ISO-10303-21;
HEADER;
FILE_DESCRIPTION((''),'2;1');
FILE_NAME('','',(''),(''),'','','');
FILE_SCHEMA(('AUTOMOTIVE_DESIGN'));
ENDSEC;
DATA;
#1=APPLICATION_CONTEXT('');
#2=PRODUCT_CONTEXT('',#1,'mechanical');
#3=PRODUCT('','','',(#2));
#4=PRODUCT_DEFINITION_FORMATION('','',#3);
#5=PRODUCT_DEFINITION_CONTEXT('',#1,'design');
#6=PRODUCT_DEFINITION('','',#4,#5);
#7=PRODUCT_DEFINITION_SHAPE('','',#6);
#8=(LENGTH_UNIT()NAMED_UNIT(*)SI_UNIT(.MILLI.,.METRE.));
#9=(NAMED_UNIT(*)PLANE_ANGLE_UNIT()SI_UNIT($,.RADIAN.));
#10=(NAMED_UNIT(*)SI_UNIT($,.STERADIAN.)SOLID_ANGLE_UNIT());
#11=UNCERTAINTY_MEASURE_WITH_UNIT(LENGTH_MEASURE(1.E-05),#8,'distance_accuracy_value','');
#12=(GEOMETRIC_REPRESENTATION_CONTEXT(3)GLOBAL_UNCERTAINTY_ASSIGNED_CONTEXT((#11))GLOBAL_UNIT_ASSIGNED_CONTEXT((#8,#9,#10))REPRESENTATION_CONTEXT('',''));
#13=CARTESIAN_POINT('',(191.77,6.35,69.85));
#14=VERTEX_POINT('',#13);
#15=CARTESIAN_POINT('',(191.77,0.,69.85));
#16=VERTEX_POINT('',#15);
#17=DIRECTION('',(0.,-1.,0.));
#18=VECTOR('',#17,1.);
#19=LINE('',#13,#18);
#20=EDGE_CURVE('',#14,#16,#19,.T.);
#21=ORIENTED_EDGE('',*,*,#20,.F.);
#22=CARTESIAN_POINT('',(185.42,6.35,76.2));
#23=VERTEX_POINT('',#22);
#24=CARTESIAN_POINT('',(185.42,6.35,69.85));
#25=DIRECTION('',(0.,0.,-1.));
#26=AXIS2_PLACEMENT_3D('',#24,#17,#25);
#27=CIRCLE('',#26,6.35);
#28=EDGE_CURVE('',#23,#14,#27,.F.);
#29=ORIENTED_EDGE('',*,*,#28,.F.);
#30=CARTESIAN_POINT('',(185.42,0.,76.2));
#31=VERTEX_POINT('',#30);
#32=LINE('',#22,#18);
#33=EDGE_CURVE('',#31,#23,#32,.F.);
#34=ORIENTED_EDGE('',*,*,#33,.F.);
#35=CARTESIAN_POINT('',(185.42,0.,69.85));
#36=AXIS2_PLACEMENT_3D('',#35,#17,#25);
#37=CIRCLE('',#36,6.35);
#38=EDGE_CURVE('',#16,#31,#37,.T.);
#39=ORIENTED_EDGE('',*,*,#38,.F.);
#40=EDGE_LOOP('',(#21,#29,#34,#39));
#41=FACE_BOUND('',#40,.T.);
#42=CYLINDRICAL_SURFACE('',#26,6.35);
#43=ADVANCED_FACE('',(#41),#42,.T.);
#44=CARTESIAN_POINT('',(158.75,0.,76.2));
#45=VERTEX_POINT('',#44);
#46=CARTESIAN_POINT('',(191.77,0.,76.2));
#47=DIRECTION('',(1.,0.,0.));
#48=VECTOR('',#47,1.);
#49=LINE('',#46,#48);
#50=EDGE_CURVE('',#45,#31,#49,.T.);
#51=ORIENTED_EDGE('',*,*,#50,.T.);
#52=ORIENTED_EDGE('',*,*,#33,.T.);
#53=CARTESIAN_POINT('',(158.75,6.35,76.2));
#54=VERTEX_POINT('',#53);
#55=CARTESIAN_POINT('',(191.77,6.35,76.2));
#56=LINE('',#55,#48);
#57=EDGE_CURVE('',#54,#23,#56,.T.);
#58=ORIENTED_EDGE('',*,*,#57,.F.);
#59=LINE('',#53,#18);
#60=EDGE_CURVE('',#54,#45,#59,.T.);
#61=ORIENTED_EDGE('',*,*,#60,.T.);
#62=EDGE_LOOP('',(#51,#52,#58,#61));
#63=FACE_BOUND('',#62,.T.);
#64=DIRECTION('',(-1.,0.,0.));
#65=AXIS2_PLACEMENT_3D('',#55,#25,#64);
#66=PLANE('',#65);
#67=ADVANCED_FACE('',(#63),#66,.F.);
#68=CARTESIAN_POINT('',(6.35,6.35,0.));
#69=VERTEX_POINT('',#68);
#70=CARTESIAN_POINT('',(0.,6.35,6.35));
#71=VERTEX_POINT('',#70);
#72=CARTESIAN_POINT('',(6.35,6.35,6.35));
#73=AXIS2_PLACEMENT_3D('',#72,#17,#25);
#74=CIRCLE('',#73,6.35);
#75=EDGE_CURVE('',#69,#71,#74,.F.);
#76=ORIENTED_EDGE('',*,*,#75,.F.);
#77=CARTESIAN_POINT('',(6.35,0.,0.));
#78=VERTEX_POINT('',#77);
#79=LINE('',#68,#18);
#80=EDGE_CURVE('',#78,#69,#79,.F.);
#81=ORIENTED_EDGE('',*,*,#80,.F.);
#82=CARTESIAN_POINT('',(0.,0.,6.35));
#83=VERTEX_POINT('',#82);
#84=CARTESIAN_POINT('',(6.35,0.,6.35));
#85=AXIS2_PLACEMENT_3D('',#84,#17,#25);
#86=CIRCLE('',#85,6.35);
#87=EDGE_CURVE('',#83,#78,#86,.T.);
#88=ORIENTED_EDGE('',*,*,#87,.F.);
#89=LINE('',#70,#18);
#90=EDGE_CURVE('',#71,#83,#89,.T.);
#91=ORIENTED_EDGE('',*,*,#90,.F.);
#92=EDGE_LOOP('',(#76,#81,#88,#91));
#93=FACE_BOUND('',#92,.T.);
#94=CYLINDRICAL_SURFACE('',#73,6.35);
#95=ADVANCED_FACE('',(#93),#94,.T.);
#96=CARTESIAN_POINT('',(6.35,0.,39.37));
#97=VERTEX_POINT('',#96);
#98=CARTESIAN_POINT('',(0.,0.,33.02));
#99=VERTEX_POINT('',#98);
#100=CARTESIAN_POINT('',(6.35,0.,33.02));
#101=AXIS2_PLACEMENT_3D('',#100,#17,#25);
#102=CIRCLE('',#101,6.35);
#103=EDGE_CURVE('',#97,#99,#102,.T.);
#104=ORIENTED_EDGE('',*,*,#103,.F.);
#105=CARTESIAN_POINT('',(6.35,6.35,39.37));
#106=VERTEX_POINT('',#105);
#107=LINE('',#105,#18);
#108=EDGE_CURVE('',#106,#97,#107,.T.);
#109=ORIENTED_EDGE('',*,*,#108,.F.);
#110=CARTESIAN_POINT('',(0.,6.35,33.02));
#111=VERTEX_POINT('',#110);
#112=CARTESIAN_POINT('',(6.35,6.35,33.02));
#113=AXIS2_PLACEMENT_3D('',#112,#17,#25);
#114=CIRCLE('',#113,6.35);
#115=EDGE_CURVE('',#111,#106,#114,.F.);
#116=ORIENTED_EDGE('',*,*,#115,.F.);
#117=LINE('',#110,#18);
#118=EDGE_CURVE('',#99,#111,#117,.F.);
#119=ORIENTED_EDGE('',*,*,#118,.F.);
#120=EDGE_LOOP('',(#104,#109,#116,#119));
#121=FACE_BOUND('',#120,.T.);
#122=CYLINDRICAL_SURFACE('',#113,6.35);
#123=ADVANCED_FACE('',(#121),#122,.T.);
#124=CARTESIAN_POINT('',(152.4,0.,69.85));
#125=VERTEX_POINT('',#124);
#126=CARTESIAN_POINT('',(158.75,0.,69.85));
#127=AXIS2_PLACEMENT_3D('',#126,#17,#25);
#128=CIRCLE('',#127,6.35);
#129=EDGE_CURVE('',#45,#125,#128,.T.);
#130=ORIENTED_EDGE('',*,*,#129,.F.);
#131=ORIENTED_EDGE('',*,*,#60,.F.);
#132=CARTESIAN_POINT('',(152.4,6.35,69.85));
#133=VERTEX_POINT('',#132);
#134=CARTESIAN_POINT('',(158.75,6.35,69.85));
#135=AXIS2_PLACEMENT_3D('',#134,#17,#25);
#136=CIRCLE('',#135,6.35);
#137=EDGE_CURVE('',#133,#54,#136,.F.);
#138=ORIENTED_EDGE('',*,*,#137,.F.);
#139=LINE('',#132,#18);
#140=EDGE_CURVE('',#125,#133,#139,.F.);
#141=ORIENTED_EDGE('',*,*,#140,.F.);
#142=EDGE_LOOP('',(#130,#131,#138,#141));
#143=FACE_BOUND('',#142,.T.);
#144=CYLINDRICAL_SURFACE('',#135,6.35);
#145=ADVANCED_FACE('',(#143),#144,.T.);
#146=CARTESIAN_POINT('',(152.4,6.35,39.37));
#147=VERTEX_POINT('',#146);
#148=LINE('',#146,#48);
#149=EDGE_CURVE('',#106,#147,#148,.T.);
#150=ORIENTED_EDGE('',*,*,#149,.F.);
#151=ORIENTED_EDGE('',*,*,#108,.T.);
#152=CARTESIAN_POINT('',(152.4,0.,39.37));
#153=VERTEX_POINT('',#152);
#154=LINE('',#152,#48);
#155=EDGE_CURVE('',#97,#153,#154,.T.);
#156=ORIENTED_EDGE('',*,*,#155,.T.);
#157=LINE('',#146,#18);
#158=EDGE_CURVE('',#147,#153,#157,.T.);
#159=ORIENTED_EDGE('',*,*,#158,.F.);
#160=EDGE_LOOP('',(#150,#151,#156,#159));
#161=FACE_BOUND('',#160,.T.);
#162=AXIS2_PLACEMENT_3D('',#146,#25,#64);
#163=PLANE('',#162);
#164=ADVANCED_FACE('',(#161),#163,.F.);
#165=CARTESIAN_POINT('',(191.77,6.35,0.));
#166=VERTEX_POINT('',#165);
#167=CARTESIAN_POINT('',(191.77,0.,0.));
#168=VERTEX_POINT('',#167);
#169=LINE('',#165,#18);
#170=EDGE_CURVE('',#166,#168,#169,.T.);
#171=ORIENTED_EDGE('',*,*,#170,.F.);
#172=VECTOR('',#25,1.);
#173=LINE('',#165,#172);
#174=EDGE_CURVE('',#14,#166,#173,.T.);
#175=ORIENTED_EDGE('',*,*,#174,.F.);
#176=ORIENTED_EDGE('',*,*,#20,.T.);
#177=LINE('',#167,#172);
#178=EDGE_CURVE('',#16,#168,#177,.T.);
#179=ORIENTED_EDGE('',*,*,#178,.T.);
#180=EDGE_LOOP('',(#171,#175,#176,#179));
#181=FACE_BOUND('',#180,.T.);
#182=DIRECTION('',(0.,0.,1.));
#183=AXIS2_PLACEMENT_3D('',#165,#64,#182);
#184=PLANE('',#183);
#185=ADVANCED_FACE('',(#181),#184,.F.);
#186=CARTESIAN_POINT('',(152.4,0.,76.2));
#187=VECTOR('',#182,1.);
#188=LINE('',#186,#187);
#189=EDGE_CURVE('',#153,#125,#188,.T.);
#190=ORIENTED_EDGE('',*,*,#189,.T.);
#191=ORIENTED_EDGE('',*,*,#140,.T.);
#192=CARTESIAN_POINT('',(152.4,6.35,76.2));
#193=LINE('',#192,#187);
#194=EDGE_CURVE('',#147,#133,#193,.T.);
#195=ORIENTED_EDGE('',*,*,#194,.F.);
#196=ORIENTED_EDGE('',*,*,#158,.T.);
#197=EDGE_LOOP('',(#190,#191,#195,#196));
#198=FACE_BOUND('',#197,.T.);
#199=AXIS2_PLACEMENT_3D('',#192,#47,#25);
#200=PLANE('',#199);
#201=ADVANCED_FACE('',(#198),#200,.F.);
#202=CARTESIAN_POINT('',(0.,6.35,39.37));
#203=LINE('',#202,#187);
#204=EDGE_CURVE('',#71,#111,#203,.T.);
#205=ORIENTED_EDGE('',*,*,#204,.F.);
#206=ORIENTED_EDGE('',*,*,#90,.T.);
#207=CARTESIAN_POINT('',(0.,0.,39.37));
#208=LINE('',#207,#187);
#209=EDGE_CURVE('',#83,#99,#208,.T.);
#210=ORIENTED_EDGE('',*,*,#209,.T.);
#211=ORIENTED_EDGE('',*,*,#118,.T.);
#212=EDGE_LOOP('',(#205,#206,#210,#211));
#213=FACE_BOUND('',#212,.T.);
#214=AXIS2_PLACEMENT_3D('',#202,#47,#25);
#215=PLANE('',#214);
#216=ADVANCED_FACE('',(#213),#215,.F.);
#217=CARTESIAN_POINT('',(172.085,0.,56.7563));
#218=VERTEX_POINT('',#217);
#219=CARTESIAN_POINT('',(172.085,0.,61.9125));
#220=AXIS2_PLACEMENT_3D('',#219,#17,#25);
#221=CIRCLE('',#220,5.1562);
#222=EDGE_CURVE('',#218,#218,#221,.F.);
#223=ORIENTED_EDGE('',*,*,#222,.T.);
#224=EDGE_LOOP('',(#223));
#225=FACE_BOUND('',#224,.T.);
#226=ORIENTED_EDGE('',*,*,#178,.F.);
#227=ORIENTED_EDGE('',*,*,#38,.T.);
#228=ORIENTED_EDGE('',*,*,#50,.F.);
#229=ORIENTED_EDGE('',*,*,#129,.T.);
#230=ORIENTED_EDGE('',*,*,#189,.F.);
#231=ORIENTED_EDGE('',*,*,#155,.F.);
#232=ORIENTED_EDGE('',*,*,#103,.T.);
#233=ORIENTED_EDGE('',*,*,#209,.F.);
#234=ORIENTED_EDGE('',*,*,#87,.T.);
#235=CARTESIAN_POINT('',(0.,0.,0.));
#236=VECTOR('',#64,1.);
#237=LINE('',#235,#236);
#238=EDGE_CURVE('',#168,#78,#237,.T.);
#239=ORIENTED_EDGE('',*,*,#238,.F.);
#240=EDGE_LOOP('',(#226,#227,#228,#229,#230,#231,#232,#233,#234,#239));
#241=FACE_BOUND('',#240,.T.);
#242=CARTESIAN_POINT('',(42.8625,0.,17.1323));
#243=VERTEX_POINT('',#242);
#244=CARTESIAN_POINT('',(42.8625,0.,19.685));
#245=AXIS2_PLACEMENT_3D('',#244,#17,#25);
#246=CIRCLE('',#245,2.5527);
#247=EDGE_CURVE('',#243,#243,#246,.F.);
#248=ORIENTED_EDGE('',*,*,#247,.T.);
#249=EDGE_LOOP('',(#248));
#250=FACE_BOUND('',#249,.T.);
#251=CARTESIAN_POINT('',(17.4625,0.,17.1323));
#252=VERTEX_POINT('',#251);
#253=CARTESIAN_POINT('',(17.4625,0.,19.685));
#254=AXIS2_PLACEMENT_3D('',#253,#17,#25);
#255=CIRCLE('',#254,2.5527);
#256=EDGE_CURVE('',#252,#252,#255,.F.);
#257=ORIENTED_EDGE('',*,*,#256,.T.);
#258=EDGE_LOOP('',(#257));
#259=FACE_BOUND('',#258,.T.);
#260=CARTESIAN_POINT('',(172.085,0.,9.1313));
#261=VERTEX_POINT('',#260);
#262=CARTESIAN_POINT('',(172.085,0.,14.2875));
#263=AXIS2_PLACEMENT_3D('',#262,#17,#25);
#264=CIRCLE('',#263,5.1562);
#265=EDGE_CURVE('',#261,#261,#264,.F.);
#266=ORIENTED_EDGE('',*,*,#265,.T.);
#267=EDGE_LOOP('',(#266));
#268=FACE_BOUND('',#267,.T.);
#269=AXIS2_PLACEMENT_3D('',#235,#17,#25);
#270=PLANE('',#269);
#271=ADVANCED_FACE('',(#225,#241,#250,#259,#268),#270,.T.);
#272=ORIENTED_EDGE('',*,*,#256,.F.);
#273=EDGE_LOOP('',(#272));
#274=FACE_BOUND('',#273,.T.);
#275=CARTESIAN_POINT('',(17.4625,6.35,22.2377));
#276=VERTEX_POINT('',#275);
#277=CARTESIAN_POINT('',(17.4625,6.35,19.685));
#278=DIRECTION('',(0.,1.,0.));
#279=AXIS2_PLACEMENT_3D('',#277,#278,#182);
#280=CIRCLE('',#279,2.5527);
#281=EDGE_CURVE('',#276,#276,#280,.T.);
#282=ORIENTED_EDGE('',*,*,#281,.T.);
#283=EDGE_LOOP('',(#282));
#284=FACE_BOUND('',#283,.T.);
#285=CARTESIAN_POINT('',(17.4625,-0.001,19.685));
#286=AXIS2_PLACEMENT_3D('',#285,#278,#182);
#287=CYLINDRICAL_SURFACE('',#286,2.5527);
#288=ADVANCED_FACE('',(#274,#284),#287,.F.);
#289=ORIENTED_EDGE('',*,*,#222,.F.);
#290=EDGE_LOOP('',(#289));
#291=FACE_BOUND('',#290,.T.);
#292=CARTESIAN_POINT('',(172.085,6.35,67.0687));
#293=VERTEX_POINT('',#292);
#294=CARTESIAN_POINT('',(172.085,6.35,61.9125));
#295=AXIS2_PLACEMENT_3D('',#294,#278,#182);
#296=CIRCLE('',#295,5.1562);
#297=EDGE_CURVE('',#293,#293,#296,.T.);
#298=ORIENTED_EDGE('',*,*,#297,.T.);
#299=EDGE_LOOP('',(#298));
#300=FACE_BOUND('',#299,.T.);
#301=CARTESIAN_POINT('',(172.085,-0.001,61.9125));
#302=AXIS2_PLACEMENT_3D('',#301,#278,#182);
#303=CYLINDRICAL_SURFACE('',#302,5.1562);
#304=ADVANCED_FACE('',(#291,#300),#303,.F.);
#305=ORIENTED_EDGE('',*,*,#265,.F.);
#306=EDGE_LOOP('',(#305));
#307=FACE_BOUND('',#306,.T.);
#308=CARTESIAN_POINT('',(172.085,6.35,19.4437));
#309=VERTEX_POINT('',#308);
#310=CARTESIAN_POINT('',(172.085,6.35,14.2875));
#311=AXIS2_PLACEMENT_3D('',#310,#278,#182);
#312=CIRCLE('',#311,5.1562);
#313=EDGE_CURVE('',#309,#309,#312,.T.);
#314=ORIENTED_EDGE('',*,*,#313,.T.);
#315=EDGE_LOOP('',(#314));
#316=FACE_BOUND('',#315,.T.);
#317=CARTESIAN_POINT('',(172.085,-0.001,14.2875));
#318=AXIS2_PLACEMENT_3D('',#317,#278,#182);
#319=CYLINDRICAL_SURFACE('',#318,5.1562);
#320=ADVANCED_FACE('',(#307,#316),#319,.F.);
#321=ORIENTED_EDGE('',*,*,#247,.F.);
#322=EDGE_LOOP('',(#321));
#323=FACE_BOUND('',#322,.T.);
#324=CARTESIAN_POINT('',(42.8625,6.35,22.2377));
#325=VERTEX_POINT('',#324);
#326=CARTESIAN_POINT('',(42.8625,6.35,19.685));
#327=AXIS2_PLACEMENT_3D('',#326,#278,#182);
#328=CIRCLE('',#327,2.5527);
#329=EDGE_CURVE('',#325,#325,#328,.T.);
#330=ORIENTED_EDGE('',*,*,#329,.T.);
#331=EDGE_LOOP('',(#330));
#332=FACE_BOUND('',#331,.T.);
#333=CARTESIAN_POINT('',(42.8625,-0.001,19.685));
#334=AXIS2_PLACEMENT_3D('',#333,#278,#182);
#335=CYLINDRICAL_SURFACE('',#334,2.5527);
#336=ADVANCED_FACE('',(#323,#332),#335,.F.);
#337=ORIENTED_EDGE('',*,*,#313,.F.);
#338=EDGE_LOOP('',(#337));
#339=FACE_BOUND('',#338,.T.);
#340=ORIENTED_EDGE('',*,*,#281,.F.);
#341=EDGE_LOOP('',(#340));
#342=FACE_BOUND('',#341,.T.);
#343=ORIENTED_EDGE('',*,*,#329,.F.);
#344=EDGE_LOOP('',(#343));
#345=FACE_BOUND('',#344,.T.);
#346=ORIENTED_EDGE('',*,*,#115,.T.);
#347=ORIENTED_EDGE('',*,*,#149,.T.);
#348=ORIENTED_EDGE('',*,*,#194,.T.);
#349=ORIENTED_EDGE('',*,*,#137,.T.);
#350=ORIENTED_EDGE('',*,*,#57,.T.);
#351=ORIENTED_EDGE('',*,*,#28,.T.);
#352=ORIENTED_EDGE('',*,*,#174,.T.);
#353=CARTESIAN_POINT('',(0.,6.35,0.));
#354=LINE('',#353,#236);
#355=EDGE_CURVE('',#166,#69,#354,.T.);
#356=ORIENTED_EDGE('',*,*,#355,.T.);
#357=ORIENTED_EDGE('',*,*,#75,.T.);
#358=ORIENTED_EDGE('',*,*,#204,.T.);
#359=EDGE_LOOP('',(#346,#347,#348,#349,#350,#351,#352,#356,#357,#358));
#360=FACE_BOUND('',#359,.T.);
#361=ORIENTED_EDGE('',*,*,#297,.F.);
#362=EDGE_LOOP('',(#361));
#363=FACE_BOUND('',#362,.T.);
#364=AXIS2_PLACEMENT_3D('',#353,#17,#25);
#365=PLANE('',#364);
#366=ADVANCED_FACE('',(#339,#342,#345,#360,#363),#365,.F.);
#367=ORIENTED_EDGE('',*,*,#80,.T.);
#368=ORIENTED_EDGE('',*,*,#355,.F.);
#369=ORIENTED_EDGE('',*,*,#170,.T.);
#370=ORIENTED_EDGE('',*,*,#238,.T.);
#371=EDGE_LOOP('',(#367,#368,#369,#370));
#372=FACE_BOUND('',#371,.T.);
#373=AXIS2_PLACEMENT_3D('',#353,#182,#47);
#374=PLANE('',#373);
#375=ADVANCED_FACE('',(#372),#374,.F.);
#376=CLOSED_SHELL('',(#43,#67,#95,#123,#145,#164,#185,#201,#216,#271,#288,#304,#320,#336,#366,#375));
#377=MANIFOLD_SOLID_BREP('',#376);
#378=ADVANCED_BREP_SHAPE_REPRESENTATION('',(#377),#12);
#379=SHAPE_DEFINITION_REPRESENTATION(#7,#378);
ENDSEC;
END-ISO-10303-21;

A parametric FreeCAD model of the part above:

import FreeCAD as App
import Part
import Sketcher
Q = App.Units.Quantity


def edges_at(feature, points):
    """Names of the edges that pass closest to the given points."""
    edges = feature.Shape.Edges
    near = lambda p: min(range(len(edges)), key=lambda i: edges[i].distToShape(Part.Vertex(*p))[0])
    return sorted({f"Edge{near(p) + 1}" for p in points})

doc = App.newDocument("Part")
body = doc.addObject("PartDesign::Body", "Body")

# Sketch on XZ plane
sketch1 = doc.addObject("Sketcher::SketchObject", "Sketch")
body.addObject(sketch1)
sketch1.AttachmentSupport = (doc.XZ_Plane, [""])
sketch1.MapMode = "FlatFace"
sketch1.addGeometry([
    Part.LineSegment(App.Vector(191.77, 0, 0), App.Vector(0, 0, 0)),  # 0
    Part.LineSegment(App.Vector(0, 0, 0), App.Vector(0, 39.37, 0)),  # 1
    Part.LineSegment(App.Vector(0, 39.37, 0), App.Vector(152.4, 39.37, 0)),  # 2
    Part.LineSegment(App.Vector(152.4, 39.37, 0), App.Vector(152.4, 76.2, 0)),  # 3
    Part.LineSegment(App.Vector(152.4, 76.2, 0), App.Vector(191.77, 76.2, 0)),  # 4
    Part.LineSegment(App.Vector(191.77, 76.2, 0), App.Vector(191.77, 0, 0)),  # 5
], False)
sketch1.addConstraint([
    Sketcher.Constraint("Coincident", 0, 2, 1, 1),
    Sketcher.Constraint("Coincident", 1, 2, 2, 1),
    Sketcher.Constraint("Coincident", 2, 2, 3, 1),
    Sketcher.Constraint("Coincident", 3, 2, 4, 1),
    Sketcher.Constraint("Coincident", 4, 2, 5, 1),
    Sketcher.Constraint("Coincident", 5, 2, 0, 1),
    Sketcher.Constraint("Horizontal", 0),
    Sketcher.Constraint("Vertical", 1),
    Sketcher.Constraint("Horizontal", 2),
    Sketcher.Constraint("Vertical", 3),
    Sketcher.Constraint("Horizontal", 4),
    Sketcher.Constraint("Vertical", 5),
    Sketcher.Constraint("Coincident", 0, 2, -1, 1),
    Sketcher.Constraint("Equal", 4, 1),
    Sketcher.Constraint("DistanceX", 2, 1, 2, 2, Q("6 in")),
    Sketcher.Constraint("DistanceY", 5, 2, 5, 1, Q("3 in")),
    Sketcher.Constraint("DistanceX", 0, 2, 0, 1, Q("7.55 in")),
])
pad1 = doc.addObject("PartDesign::Pad", "Pad")
body.addObject(pad1)
pad1.Profile = sketch1
pad1.Length = Q("0.25 in")
pad1.Reversed = True

# Sketch on XZ plane
sketch2 = doc.addObject("Sketcher::SketchObject", "Sketch001")
body.addObject(sketch2)
sketch2.AttachmentSupport = (doc.XZ_Plane, [""])
sketch2.MapMode = "FlatFace"
sketch2.AttachmentOffset = App.Placement(App.Vector(0, 0, -0.25 * 25.4), App.Rotation())
sketch2.addGeometry(Part.Circle(App.Vector(17.4625, 19.685, 0), App.Vector(0, 0, 1), 2.5527), False)
sketch2.addConstraint([
    Sketcher.Constraint("Diameter", 0, Q("0.201 in")),
    Sketcher.Constraint("DistanceX", -1, 1, 0, 3, Q("0.6875 in")),
    Sketcher.Constraint("DistanceY", -1, 1, 0, 3, Q("0.775 in")),
])
pocket1 = doc.addObject("PartDesign::Pocket", "Pocket")
body.addObject(pocket1)
pocket1.Profile = sketch2
pocket1.Type = "UpToFirst"
pocket1.Reversed = True

# Sketch on XZ plane
sketch3 = doc.addObject("Sketcher::SketchObject", "Sketch002")
body.addObject(sketch3)
sketch3.AttachmentSupport = (doc.XZ_Plane, [""])
sketch3.MapMode = "FlatFace"
sketch3.AttachmentOffset = App.Placement(App.Vector(0, 0, -0.25 * 25.4), App.Rotation())
sketch3.addGeometry(Part.Circle(App.Vector(42.8625, 19.685, 0), App.Vector(0, 0, 1), 2.5527), False)
sketch3.addConstraint([
    Sketcher.Constraint("Diameter", 0, Q("0.201 in")),
    Sketcher.Constraint("DistanceX", -1, 1, 0, 3, Q("1.6875 in")),
    Sketcher.Constraint("DistanceY", -1, 1, 0, 3, Q("0.775 in")),
])
pocket2 = doc.addObject("PartDesign::Pocket", "Pocket001")
body.addObject(pocket2)
pocket2.Profile = sketch3
pocket2.Type = "UpToFirst"
pocket2.Reversed = True

# Sketch on XZ plane
sketch4 = doc.addObject("Sketcher::SketchObject", "Sketch003")
body.addObject(sketch4)
sketch4.AttachmentSupport = (doc.XZ_Plane, [""])
sketch4.MapMode = "FlatFace"
sketch4.AttachmentOffset = App.Placement(App.Vector(0, 0, -0.25 * 25.4), App.Rotation())
sketch4.addGeometry(Part.Circle(App.Vector(172.085, 14.2875, 0), App.Vector(0, 0, 1), 5.1562), False)
sketch4.addConstraint([
    Sketcher.Constraint("Diameter", 0, Q("0.406 in")),
    Sketcher.Constraint("DistanceX", -1, 1, 0, 3, Q("6.775 in")),
    Sketcher.Constraint("DistanceY", -1, 1, 0, 3, Q("0.5625 in")),
])
pocket3 = doc.addObject("PartDesign::Pocket", "Pocket002")
body.addObject(pocket3)
pocket3.Profile = sketch4
pocket3.Type = "UpToFirst"
pocket3.Reversed = True

# Sketch on XZ plane
sketch5 = doc.addObject("Sketcher::SketchObject", "Sketch004")
body.addObject(sketch5)
sketch5.AttachmentSupport = (doc.XZ_Plane, [""])
sketch5.MapMode = "FlatFace"
sketch5.AttachmentOffset = App.Placement(App.Vector(0, 0, -0.25 * 25.4), App.Rotation())
sketch5.addGeometry(Part.Circle(App.Vector(172.085, 61.9125, 0), App.Vector(0, 0, 1), 5.1562), False)
sketch5.addConstraint([
    Sketcher.Constraint("Diameter", 0, Q("0.406 in")),
    Sketcher.Constraint("DistanceX", -1, 1, 0, 3, Q("6.775 in")),
    Sketcher.Constraint("DistanceY", -1, 1, 0, 3, Q("2.4375 in")),
])
pocket4 = doc.addObject("PartDesign::Pocket", "Pocket003")
body.addObject(pocket4)
pocket4.Profile = sketch5
pocket4.Type = "UpToFirst"
pocket4.Reversed = True
doc.recompute()

fillet = doc.addObject("PartDesign::Fillet", "Fillet")
body.addObject(fillet)
fillet.Base = (pocket4, edges_at(pocket4, [
    (0, 3.175, 0),
    (191.77, 3.175, 76.2),
    (152.4, 3.175, 76.2),
    (0, 3.175, 39.37),
]))
fillet.Radius = Q("0.25 in")

doc.recompute()
